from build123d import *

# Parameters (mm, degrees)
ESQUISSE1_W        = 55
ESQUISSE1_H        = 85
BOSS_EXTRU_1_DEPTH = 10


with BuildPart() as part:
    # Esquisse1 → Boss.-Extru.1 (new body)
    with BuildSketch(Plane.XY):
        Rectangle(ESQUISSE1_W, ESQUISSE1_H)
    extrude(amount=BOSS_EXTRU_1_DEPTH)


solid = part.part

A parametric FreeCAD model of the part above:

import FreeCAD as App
import Part
import Sketcher


def add_polygon(sketch, points):
    """Adds a closed chain of lines whose ends are joined by coincident constraints."""
    first, n = sketch.GeometryCount, len(points)
    for a, b in zip(points, points[1:] + points[:1]):
        sketch.addGeometry(Part.LineSegment(App.Vector(*a, 0), App.Vector(*b, 0)), False)
    for i in range(n):
        sketch.addConstraint(Sketcher.Constraint("Coincident", first + i, 2, first + (i + 1) % n, 1))

doc = App.newDocument("Part")
body = doc.addObject("PartDesign::Body", "Body")

# Sketch on XY plane
sketch1 = body.newObject("Sketcher::SketchObject", "Sketch")
sketch1.AttachmentSupport = (doc.getObject("XY_Plane"), [""])
sketch1.MapMode = "FlatFace"
add_polygon(sketch1, [(-27.5, 42.5), (-27.5, -42.5), (27.5, -42.5), (27.5, 42.5)])  # lines 0-3
sketch1.addConstraint(Sketcher.Constraint("Vertical", 0))
sketch1.addConstraint(Sketcher.Constraint("Horizontal", 1))
sketch1.addConstraint(Sketcher.Constraint("Vertical", 2))
sketch1.addConstraint(Sketcher.Constraint("Horizontal", 3))
sketch1.addConstraint(Sketcher.Constraint("Symmetric", 0, 2, 2, 2, -1, 1))
sketch1.addConstraint(Sketcher.Constraint("DistanceX", 1, 1, 1, 2, 55.0))
sketch1.addConstraint(Sketcher.Constraint("DistanceY", 0, 2, 0, 1, 85.0))
pad1 = body.newObject("PartDesign::Pad", "Pad")
pad1.Profile = sketch1
pad1.Length = 10

doc.recompute()
